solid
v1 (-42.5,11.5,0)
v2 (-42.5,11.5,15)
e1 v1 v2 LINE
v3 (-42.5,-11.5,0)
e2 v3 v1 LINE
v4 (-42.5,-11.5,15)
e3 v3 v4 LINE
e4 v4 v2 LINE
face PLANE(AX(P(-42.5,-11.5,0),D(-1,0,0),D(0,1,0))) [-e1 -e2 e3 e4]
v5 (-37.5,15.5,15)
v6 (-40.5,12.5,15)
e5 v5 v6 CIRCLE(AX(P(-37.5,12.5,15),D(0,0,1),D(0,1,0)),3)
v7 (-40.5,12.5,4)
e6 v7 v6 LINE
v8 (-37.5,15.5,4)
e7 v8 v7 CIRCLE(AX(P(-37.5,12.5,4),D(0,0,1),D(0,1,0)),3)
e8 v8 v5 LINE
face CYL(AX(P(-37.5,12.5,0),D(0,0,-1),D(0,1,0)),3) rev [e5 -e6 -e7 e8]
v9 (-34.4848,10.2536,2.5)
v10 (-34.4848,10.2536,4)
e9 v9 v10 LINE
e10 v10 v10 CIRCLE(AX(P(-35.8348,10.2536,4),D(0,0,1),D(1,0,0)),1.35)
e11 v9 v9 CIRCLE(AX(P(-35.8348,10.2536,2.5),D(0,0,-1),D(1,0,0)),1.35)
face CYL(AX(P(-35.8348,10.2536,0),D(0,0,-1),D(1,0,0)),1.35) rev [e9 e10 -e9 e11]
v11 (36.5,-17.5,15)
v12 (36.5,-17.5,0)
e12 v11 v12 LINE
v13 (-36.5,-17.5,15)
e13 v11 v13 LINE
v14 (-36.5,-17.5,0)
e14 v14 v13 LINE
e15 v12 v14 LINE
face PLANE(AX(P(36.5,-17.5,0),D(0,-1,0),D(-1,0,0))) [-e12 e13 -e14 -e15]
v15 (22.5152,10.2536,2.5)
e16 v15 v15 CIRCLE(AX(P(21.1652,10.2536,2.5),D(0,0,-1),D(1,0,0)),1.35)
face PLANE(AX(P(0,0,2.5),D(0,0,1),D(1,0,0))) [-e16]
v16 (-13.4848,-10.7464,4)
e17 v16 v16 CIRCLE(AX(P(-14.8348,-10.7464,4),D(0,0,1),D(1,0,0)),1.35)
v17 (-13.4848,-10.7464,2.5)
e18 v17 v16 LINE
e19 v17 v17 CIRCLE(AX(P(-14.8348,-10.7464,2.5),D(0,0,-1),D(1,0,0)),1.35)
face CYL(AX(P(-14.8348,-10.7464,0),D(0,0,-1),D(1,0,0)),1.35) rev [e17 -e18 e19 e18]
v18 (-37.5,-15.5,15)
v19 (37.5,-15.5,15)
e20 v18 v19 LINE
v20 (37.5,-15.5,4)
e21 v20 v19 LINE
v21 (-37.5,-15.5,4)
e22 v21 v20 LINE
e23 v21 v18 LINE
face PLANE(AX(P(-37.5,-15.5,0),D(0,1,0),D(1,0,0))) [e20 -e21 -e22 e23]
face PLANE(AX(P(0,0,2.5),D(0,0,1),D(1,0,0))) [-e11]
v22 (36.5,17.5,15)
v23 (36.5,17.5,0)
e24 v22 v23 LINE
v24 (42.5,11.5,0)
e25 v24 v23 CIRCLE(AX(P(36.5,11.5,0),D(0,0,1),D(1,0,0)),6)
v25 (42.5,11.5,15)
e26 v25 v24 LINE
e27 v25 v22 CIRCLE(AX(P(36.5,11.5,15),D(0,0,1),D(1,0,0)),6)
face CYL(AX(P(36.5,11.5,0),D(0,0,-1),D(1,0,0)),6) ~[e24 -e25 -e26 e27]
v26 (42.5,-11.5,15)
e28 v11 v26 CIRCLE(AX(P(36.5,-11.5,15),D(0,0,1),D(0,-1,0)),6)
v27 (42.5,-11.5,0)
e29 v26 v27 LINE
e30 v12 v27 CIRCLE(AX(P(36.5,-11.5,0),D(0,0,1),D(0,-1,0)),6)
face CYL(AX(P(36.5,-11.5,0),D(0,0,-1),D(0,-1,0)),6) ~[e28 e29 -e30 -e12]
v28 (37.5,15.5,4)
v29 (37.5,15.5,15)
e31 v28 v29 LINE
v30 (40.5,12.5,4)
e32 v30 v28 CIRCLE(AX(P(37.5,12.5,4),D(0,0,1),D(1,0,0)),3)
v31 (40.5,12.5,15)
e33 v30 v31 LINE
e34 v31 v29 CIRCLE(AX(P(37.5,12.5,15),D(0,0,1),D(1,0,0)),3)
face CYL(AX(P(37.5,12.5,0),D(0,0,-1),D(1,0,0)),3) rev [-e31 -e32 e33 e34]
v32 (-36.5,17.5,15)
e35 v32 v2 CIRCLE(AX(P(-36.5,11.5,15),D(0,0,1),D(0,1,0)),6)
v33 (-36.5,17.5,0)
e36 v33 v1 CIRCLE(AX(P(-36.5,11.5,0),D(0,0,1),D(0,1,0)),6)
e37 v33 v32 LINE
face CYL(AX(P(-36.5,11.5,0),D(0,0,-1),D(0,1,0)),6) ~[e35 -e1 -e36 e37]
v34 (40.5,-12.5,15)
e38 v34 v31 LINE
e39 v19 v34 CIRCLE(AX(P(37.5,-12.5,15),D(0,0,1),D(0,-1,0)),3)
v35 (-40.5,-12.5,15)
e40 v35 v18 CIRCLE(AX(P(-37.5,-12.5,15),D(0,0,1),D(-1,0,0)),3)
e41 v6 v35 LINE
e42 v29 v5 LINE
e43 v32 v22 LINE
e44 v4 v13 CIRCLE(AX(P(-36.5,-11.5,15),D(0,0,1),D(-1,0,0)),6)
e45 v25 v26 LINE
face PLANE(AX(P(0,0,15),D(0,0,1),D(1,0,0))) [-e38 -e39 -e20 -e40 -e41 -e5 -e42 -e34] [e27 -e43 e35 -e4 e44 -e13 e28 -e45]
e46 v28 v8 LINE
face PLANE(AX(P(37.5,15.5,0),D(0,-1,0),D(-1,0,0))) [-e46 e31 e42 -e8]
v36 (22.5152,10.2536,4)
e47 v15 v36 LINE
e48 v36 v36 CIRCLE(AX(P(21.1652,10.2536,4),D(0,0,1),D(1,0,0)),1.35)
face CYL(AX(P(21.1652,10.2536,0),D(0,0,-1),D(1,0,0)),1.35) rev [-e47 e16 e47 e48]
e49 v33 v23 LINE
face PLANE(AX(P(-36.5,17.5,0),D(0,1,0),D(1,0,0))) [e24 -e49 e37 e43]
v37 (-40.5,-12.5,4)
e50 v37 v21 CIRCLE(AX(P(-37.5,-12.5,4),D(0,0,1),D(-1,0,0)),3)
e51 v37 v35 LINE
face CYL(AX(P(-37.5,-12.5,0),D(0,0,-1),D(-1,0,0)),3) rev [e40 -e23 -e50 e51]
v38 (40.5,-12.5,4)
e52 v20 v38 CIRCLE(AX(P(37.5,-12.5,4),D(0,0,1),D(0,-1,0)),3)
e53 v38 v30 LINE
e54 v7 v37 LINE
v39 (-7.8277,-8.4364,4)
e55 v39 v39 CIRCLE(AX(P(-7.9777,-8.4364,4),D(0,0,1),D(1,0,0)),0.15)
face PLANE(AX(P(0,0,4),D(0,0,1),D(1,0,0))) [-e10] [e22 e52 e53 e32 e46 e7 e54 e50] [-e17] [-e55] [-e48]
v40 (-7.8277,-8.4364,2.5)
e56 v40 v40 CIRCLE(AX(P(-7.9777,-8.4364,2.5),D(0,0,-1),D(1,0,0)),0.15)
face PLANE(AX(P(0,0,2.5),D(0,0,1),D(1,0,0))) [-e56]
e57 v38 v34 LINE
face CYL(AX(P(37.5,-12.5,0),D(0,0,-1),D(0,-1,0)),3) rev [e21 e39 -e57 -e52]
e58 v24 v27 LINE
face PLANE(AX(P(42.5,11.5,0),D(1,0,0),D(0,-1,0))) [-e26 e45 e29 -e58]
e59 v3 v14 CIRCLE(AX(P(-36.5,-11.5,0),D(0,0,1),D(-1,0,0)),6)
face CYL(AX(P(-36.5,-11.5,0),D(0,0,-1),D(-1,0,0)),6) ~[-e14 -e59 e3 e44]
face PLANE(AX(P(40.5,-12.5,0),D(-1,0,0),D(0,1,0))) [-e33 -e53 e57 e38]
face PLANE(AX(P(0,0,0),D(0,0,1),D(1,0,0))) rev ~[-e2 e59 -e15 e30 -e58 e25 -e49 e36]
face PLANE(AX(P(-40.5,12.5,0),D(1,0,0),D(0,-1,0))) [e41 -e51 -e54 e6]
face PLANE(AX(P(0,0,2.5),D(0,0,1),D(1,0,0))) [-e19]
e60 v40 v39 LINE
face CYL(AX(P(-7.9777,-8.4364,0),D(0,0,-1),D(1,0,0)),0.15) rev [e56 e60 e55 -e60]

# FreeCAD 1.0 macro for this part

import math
import FreeCAD as App
import Part
import Sketcher
Q = App.Units.Quantity

doc = App.newDocument("Part")
body = doc.addObject("PartDesign::Body", "Body")

# Sketch on XY plane
sketch1 = body.newObject("Sketcher::SketchObject", "Sketch")
sketch1.AttachmentSupport = (doc.getObject("XY_Plane"), [""])
sketch1.MapMode = "FlatFace"
sketch1.addGeometry(Part.LineSegment(App.Vector(36.5, 17.5, 0), App.Vector(-36.5, 17.5, 0)), False)
sketch1.addGeometry(Part.ArcOfCircle(Part.Circle(App.Vector(-36.5, 11.5, 0), App.Vector(0, 0, 1), 6), math.radians(90), math.radians(180)), False)
sketch1.addGeometry(Part.LineSegment(App.Vector(-42.5, 11.5, 0), App.Vector(-42.5, -11.5, 0)), False)
sketch1.addGeometry(Part.ArcOfCircle(Part.Circle(App.Vector(-36.5, -11.5, 0), App.Vector(0, 0, 1), 6), math.radians(180), math.radians(270)), False)
sketch1.addGeometry(Part.LineSegment(App.Vector(-36.5, -17.5, 0), App.Vector(36.5, -17.5, 0)), False)
sketch1.addGeometry(Part.ArcOfCircle(Part.Circle(App.Vector(36.5, -11.5, 0), App.Vector(0, 0, 1), 6), math.radians(-90), math.radians(0)), False)
sketch1.addGeometry(Part.LineSegment(App.Vector(42.5, -11.5, 0), App.Vector(42.5, 11.5, 0)), False)
sketch1.addGeometry(Part.ArcOfCircle(Part.Circle(App.Vector(36.5, 11.5, 0), App.Vector(0, 0, 1), 6), math.radians(0), math.radians(90)), False)
sketch1.addConstraint(Sketcher.Constraint("Tangent", 0, 2, 1, 1))
sketch1.addConstraint(Sketcher.Constraint("Tangent", 1, 2, 2, 1))
sketch1.addConstraint(Sketcher.Constraint("Tangent", 2, 2, 3, 1))
sketch1.addConstraint(Sketcher.Constraint("Tangent", 3, 2, 4, 1))
sketch1.addConstraint(Sketcher.Constraint("Tangent", 4, 2, 5, 1))
sketch1.addConstraint(Sketcher.Constraint("Tangent", 5, 2, 6, 1))
sketch1.addConstraint(Sketcher.Constraint("Tangent", 6, 2, 7, 1))
sketch1.addConstraint(Sketcher.Constraint("Tangent", 7, 2, 0, 1))
sketch1.addConstraint(Sketcher.Constraint("Horizontal", 0))
sketch1.addConstraint(Sketcher.Constraint("Vertical", 2))
sketch1.addConstraint(Sketcher.Constraint("Horizontal", 4))
sketch1.addConstraint(Sketcher.Constraint("Vertical", 6))
sketch1.addConstraint(Sketcher.Constraint("Equal", 1, 3))
sketch1.addConstraint(Sketcher.Constraint("Equal", 3, 5))
sketch1.addConstraint(Sketcher.Constraint("Equal", 5, 7))
sketch1.addConstraint(Sketcher.Constraint("Symmetric", 1, 3, 5, 3, -1, 1))
sketch1.addConstraint(Sketcher.Constraint("Radius", 1, Q("6 mm")))
sketch1.addConstraint(Sketcher.Constraint("DistanceY", 3, 2, 0, 2, Q("35 mm")))
sketch1.addConstraint(Sketcher.Constraint("DistanceX", 0, 2, 0, 1, Q("73 mm")))
pad1 = body.newObject("PartDesign::Pad", "Pad")
pad1.Profile = sketch1
pad1.Length = 2.5

# Sketch on XY plane
sketch2 = body.newObject("Sketcher::SketchObject", "Sketch001")
sketch2.AttachmentSupport = (doc.getObject("XY_Plane"), [""])
sketch2.MapMode = "FlatFace"
sketch2.addGeometry(Part.LineSegment(App.Vector(36.5, 17.5, 0), App.Vector(-36.5, 17.5, 0)), False)
sketch2.addGeometry(Part.ArcOfCircle(Part.Circle(App.Vector(-36.5, 11.5, 0), App.Vector(0, 0, 1), 6), math.radians(90), math.radians(180)), False)
sketch2.addGeometry(Part.LineSegment(App.Vector(-42.5, 11.5, 0), App.Vector(-42.5, -11.5, 0)), False)
sketch2.addGeometry(Part.ArcOfCircle(Part.Circle(App.Vector(-36.5, -11.5, 0), App.Vector(0, 0, 1), 6), math.radians(180), math.radians(270)), False)
sketch2.addGeometry(Part.LineSegment(App.Vector(-36.5, -17.5, 0), App.Vector(36.5, -17.5, 0)), False)
sketch2.addGeometry(Part.ArcOfCircle(Part.Circle(App.Vector(36.5, -11.5, 0), App.Vector(0, 0, 1), 6), math.radians(-90), math.radians(0)), False)
sketch2.addGeometry(Part.LineSegment(App.Vector(42.5, -11.5, 0), App.Vector(42.5, 11.5, 0)), False)
sketch2.addGeometry(Part.ArcOfCircle(Part.Circle(App.Vector(36.5, 11.5, 0), App.Vector(0, 0, 1), 6), math.radians(0), math.radians(90)), False)
sketch2.addGeometry(Part.LineSegment(App.Vector(-37.5, 15.5, 0), App.Vector(37.5, 15.5, 0)), False)
sketch2.addGeometry(Part.ArcOfCircle(Part.Circle(App.Vector(37.5, 12.5, 0), App.Vector(0, 0, 1), 3), math.radians(0), math.radians(90)), False)
sketch2.addGeometry(Part.LineSegment(App.Vector(40.5, 12.5, 0), App.Vector(40.5, -12.5, 0)), False)
sketch2.addGeometry(Part.ArcOfCircle(Part.Circle(App.Vector(37.5, -12.5, 0), App.Vector(0, 0, 1), 3), math.radians(-90), math.radians(0)), False)
sketch2.addGeometry(Part.LineSegment(App.Vector(37.5, -15.5, 0), App.Vector(-37.5, -15.5, 0)), False)
sketch2.addGeometry(Part.ArcOfCircle(Part.Circle(App.Vector(-37.5, -12.5, 0), App.Vector(0, 0, 1), 3), math.radians(180), math.radians(270)), False)
sketch2.addGeometry(Part.LineSegment(App.Vector(-40.5, -12.5, 0), App.Vector(-40.5, 12.5, 0)), False)
sketch2.addGeometry(Part.ArcOfCircle(Part.Circle(App.Vector(-37.5, 12.5, 0), App.Vector(0, 0, 1), 3), math.radians(90), math.radians(180)), False)
sketch2.addConstraint(Sketcher.Constraint("Tangent", 0, 2, 1, 1))
sketch2.addConstraint(Sketcher.Constraint("Tangent", 1, 2, 2, 1))
sketch2.addConstraint(Sketcher.Constraint("Tangent", 2, 2, 3, 1))
sketch2.addConstraint(Sketcher.Constraint("Tangent", 3, 2, 4, 1))
sketch2.addConstraint(Sketcher.Constraint("Tangent", 4, 2, 5, 1))
sketch2.addConstraint(Sketcher.Constraint("Tangent", 5, 2, 6, 1))
sketch2.addConstraint(Sketcher.Constraint("Tangent", 6, 2, 7, 1))
sketch2.addConstraint(Sketcher.Constraint("Tangent", 7, 2, 0, 1))
sketch2.addConstraint(Sketcher.Constraint("Tangent", 8, 2, 9, 2))
sketch2.addConstraint(Sketcher.Constraint("Tangent", 9, 1, 10, 1))
sketch2.addConstraint(Sketcher.Constraint("Tangent", 10, 2, 11, 2))
sketch2.addConstraint(Sketcher.Constraint("Tangent", 11, 1, 12, 1))
sketch2.addConstraint(Sketcher.Constraint("Tangent", 12, 2, 13, 2))
sketch2.addConstraint(Sketcher.Constraint("Tangent", 13, 1, 14, 1))
sketch2.addConstraint(Sketcher.Constraint("Tangent", 14, 2, 15, 2))
sketch2.addConstraint(Sketcher.Constraint("Tangent", 15, 1, 8, 1))
sketch2.addConstraint(Sketcher.Constraint("Horizontal", 0))
sketch2.addConstraint(Sketcher.Constraint("Vertical", 2))
sketch2.addConstraint(Sketcher.Constraint("Horizontal", 4))
sketch2.addConstraint(Sketcher.Constraint("Vertical", 6))
sketch2.addConstraint(Sketcher.Constraint("Horizontal", 8))
sketch2.addConstraint(Sketcher.Constraint("Vertical", 10))
sketch2.addConstraint(Sketcher.Constraint("Horizontal", 12))
sketch2.addConstraint(Sketcher.Constraint("Vertical", 14))
sketch2.addConstraint(Sketcher.Constraint("Equal", 1, 3))
sketch2.addConstraint(Sketcher.Constraint("Equal", 3, 5))
sketch2.addConstraint(Sketcher.Constraint("Equal", 5, 7))
sketch2.addConstraint(Sketcher.Constraint("Equal", 9, 11))
sketch2.addConstraint(Sketcher.Constraint("Equal", 11, 13))
sketch2.addConstraint(Sketcher.Constraint("Equal", 13, 15))
sketch2.addConstraint(Sketcher.Constraint("Symmetric", 1, 3, 5, 3, -1, 1))
sketch2.addConstraint(Sketcher.Constraint("Symmetric", 9, 3, 13, 3, -1, 1))
sketch2.addConstraint(Sketcher.Constraint("Radius", 1, Q("6 mm")))
sketch2.addConstraint(Sketcher.Constraint("Radius", 9, Q("3 mm")))
sketch2.addConstraint(Sketcher.Constraint("DistanceX", 0, 2, 0, 1, Q("73 mm")))
sketch2.addConstraint(Sketcher.Constraint("DistanceX", 8, 1, 8, 2, Q("75 mm")))
sketch2.addConstraint(Sketcher.Constraint("DistanceY", 2, 2, 2, 1, Q("23 mm")))
sketch2.addConstraint(Sketcher.Constraint("DistanceY", 10, 2, 10, 1, Q("25 mm")))
pad2 = body.newObject("PartDesign::Pad", "Pad001")
pad2.Profile = sketch2
pad2.Length = 15

# Sketch on XY plane
sketch3 = body.newObject("Sketcher::SketchObject", "Sketch002")
sketch3.AttachmentSupport = (doc.getObject("XY_Plane"), [""])
sketch3.MapMode = "FlatFace"
sketch3.addGeometry(Part.ArcOfCircle(Part.Circle(App.Vector(37.5, 12.5, 0), App.Vector(0, 0, 1), 3), math.radians(0), math.radians(90)), False)
sketch3.addGeometry(Part.LineSegment(App.Vector(37.5, 15.5, 0), App.Vector(-37.5, 15.5, 0)), False)
sketch3.addGeometry(Part.ArcOfCircle(Part.Circle(App.Vector(-37.5, 12.5, 0), App.Vector(0, 0, 1), 3), math.radians(90), math.radians(180)), False)
sketch3.addGeometry(Part.LineSegment(App.Vector(-40.5, 12.5, 0), App.Vector(-40.5, -12.5, 0)), False)
sketch3.addGeometry(Part.ArcOfCircle(Part.Circle(App.Vector(-37.5, -12.5, 0), App.Vector(0, 0, 1), 3), math.radians(180), math.radians(270)), False)
sketch3.addGeometry(Part.LineSegment(App.Vector(-37.5, -15.5, 0), App.Vector(37.5, -15.5, 0)), False)
sketch3.addGeometry(Part.ArcOfCircle(Part.Circle(App.Vector(37.5, -12.5, 0), App.Vector(0, 0, 1), 3), math.radians(-90), math.radians(0)), False)
sketch3.addGeometry(Part.LineSegment(App.Vector(40.5, -12.5, 0), App.Vector(40.5, 12.5, 0)), False)
sketch3.addGeometry(Part.Circle(App.Vector(-14.8348, -10.7464, 0), App.Vector(0, 0, 1), 1.35), False)
sketch3.addGeometry(Part.Circle(App.Vector(-7.9777, -8.4364, 0), App.Vector(0, 0, 1), 0.15), False)
sketch3.addGeometry(Part.Circle(App.Vector(-35.8348, 10.2536, 0), App.Vector(0, 0, 1), 1.35), False)
sketch3.addGeometry(Part.Circle(App.Vector(21.1652, 10.2536, 0), App.Vector(0, 0, 1), 1.35), False)
sketch3.addConstraint(Sketcher.Constraint("Tangent", 0, 2, 1, 1))
sketch3.addConstraint(Sketcher.Constraint("Tangent", 1, 2, 2, 1))
sketch3.addConstraint(Sketcher.Constraint("Tangent", 2, 2, 3, 1))
sketch3.addConstraint(Sketcher.Constraint("Tangent", 3, 2, 4, 1))
sketch3.addConstraint(Sketcher.Constraint("Tangent", 4, 2, 5, 1))
sketch3.addConstraint(Sketcher.Constraint("Tangent", 5, 2, 6, 1))
sketch3.addConstraint(Sketcher.Constraint("Tangent", 6, 2, 7, 1))
sketch3.addConstraint(Sketcher.Constraint("Tangent", 7, 2, 0, 1))
sketch3.addConstraint(Sketcher.Constraint("Horizontal", 1))
sketch3.addConstraint(Sketcher.Constraint("Vertical", 3))
sketch3.addConstraint(Sketcher.Constraint("Horizontal", 5))
sketch3.addConstraint(Sketcher.Constraint("Vertical", 7))
sketch3.addConstraint(Sketcher.Constraint("Equal", 0, 2))
sketch3.addConstraint(Sketcher.Constraint("Equal", 2, 4))
sketch3.addConstraint(Sketcher.Constraint("Equal", 4, 6))
sketch3.addConstraint(Sketcher.Constraint("Equal", 8, 10))
sketch3.addConstraint(Sketcher.Constraint("Equal", 10, 11))
sketch3.addConstraint(Sketcher.Constraint("Symmetric", 0, 3, 4, 3, -1, 1))
sketch3.addConstraint(Sketcher.Constraint("Horizontal", 10, 3, 11, 3))
sketch3.addConstraint(Sketcher.Constraint("Radius", 0, Q("3 mm")))
sketch3.addConstraint(Sketcher.Constraint("DistanceY", 5, 2, 0, 2, Q("31 mm")))
sketch3.addConstraint(Sketcher.Constraint("Diameter", 8, Q("2.7 mm")))
sketch3.addConstraint(Sketcher.Constraint("Diameter", 9, Q("0.3 mm")))
sketch3.addConstraint(Sketcher.Constraint("DistanceX", 1, 2, 1, 1, Q("75 mm")))
sketch3.addConstraint(Sketcher.Constraint("DistanceX", 10, 3, 8, 3, Q("21 mm")))
sketch3.addConstraint(Sketcher.Constraint("DistanceY", 8, 3, 10, 3, Q("21 mm")))
sketch3.addConstraint(Sketcher.Constraint("DistanceX", 8, 3, 11, 3, Q("36 mm")))
sketch3.addConstraint(Sketcher.Constraint("DistanceY", 8, 3, 9, 3, Q("2.31 mm")))
sketch3.addConstraint(Sketcher.Constraint("DistanceX", 8, 3, 9, 3, Q("6.857 mm")))
sketch3.addConstraint(Sketcher.Constraint("DistanceX", 8, 3, -1, 1, Q("14.8348 mm")))
sketch3.addConstraint(Sketcher.Constraint("DistanceY", 8, 3, -1, 1, Q("10.7464 mm")))
pad3 = body.newObject("PartDesign::Pad", "Pad002")
pad3.Profile = sketch3
pad3.Length = 4

doc.recompute()
